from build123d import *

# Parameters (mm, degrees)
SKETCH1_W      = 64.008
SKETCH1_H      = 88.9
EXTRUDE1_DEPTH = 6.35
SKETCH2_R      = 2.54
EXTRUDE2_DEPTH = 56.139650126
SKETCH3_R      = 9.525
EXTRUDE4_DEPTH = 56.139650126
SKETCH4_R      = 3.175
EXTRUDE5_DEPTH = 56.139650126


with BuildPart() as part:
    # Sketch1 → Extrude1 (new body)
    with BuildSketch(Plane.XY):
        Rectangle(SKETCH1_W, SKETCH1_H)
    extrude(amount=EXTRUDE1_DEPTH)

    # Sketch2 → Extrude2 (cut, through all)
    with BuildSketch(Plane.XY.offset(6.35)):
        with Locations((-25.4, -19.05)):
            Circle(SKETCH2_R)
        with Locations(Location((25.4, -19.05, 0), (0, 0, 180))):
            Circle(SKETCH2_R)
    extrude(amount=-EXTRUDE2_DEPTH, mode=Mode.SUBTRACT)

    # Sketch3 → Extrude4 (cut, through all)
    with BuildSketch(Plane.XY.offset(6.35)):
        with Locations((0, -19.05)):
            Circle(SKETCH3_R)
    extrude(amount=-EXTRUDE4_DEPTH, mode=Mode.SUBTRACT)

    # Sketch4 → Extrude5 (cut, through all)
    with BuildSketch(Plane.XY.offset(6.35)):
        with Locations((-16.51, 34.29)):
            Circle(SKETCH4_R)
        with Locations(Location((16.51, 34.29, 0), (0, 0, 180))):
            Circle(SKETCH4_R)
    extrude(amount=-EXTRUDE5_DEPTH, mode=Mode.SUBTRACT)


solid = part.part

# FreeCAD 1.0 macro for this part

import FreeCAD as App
import Part
import Sketcher
Q = App.Units.Quantity


def add_polygon(sketch, points):
    """Adds a closed chain of lines whose ends are joined by coincident constraints."""
    first, n = sketch.GeometryCount, len(points)
    for a, b in zip(points, points[1:] + points[:1]):
        sketch.addGeometry(Part.LineSegment(App.Vector(*a, 0), App.Vector(*b, 0)), False)
    for i in range(n):
        sketch.addConstraint(Sketcher.Constraint("Coincident", first + i, 2, first + (i + 1) % n, 1))

doc = App.newDocument("Part")
params = doc.addObject("Spreadsheet::Sheet", "Params")
for row, (alias, value) in enumerate([
    ("sketch1_height", "3.5 in"),
    ("sketch1_width", "2.52 in"),
    ("pad1_length", "0.25 in"),
    ("sketch2_diameter", "0.2 in"),
    ("sketch3_diameter", "0.75 in"),
    ("sketch4_diameter", "0.25 in"),
], start=1):
    params.set(f"A{row}", alias)
    params.set(f"B{row}", "=" + value)
    params.setAlias(f"B{row}", alias)

body = doc.addObject("PartDesign::Body", "Body")

sketch1 = doc.addObject("Sketcher::SketchObject", "Sketch")
body.addObject(sketch1)
sketch1.AttachmentSupport = (doc.XY_Plane, [""])
sketch1.MapMode = "FlatFace"
add_polygon(sketch1, [(-32, 44), (-32, -44), (32, -44), (32, 44)])
sketch1.addConstraint([
    Sketcher.Constraint("Vertical", 0),
    Sketcher.Constraint("Horizontal", 1),
    Sketcher.Constraint("Vertical", 2),
    Sketcher.Constraint("Horizontal", 3),
    Sketcher.Constraint("Symmetric", 0, 2, 2, 2, -1, 1),
    Sketcher.Constraint("DistanceY", 0, 2, 0, 1, Q("3.5 in")),
    Sketcher.Constraint("DistanceX", 1, 1, 1, 2, Q("2.52 in")),
])
sketch1.setExpression("Constraints[9]", "Params.sketch1_height")
sketch1.setExpression("Constraints[10]", "Params.sketch1_width")
pad1 = doc.addObject("PartDesign::Pad", "Pad")
body.addObject(pad1)
pad1.Profile = sketch1
pad1.setExpression("Length", "Params.pad1_length")

sketch2 = doc.addObject("Sketcher::SketchObject", "Sketch001")
body.addObject(sketch2)
sketch2.AttachmentSupport = (doc.XY_Plane, [""])
sketch2.MapMode = "FlatFace"
sketch2.AttachmentOffset = App.Placement(App.Vector(0, 0, 0.25 * 25.4), App.Rotation())
sketch2.addGeometry([
    Part.Circle(App.Vector(-25.4, -19.1, 0), App.Vector(0, 0, 1), 2.5),
    Part.Circle(App.Vector(25.4, -19.1, 0), App.Vector(0, 0, 1), 2.5),
], False)
sketch2.addConstraint([
    Sketcher.Constraint("Equal", 0, 1),
    Sketcher.Constraint("Symmetric", 0, 3, 1, 3, -2),
    Sketcher.Constraint("Diameter", 0, Q("0.2 in")),
    Sketcher.Constraint("DistanceX", 0, 3, -1, 1, Q("1 in")),
    Sketcher.Constraint("DistanceY", 0, 3, -1, 1, Q("0.75 in")),
])
sketch2.setExpression("Constraints[2]", "Params.sketch2_diameter")
pocket1 = doc.addObject("PartDesign::Pocket", "Pocket")
body.addObject(pocket1)
pocket1.Profile = sketch2
pocket1.Type = "ThroughAll"

sketch3 = doc.addObject("Sketcher::SketchObject", "Sketch002")
body.addObject(sketch3)
sketch3.AttachmentSupport = (doc.XY_Plane, [""])
sketch3.MapMode = "FlatFace"
sketch3.AttachmentOffset = App.Placement(App.Vector(0, 0, 0.25 * 25.4), App.Rotation())
sketch3.addGeometry(Part.Circle(App.Vector(0, -19, 0), App.Vector(0, 0, 1), 10), False)
sketch3.addConstraint([
    Sketcher.Constraint("PointOnObject", 0, 3, -2),
    Sketcher.Constraint("Diameter", 0, Q("0.75 in")),
    Sketcher.Constraint("DistanceY", 0, 3, -1, 1, Q("0.75 in")),
])
sketch3.setExpression("Constraints[1]", "Params.sketch3_diameter")
pocket2 = doc.addObject("PartDesign::Pocket", "Pocket001")
body.addObject(pocket2)
pocket2.Profile = sketch3
pocket2.Type = "ThroughAll"

sketch4 = doc.addObject("Sketcher::SketchObject", "Sketch003")
body.addObject(sketch4)
sketch4.AttachmentSupport = (doc.XY_Plane, [""])
sketch4.MapMode = "FlatFace"
sketch4.AttachmentOffset = App.Placement(App.Vector(0, 0, 0.25 * 25.4), App.Rotation())
sketch4.addGeometry([
    Part.Circle(App.Vector(-16.5, 34.3, 0), App.Vector(0, 0, 1), 3.2),
    Part.Circle(App.Vector(16.5, 34.3, 0), App.Vector(0, 0, 1), 3.2),
], False)
sketch4.addConstraint([
    Sketcher.Constraint("Equal", 0, 1),
    Sketcher.Constraint("Symmetric", 0, 3, 1, 3, -2),
    Sketcher.Constraint("Diameter", 0, Q("0.25 in")),
    Sketcher.Constraint("DistanceX", 0, 3, 1, 3, Q("1.3 in")),
    Sketcher.Constraint("DistanceY", -1, 1, 0, 3, Q("1.35 in")),
])
sketch4.setExpression("Constraints[2]", "Params.sketch4_diameter")
pocket3 = doc.addObject("PartDesign::Pocket", "Pocket002")
body.addObject(pocket3)
pocket3.Profile = sketch4
pocket3.Type = "ThroughAll"

doc.recompute()
